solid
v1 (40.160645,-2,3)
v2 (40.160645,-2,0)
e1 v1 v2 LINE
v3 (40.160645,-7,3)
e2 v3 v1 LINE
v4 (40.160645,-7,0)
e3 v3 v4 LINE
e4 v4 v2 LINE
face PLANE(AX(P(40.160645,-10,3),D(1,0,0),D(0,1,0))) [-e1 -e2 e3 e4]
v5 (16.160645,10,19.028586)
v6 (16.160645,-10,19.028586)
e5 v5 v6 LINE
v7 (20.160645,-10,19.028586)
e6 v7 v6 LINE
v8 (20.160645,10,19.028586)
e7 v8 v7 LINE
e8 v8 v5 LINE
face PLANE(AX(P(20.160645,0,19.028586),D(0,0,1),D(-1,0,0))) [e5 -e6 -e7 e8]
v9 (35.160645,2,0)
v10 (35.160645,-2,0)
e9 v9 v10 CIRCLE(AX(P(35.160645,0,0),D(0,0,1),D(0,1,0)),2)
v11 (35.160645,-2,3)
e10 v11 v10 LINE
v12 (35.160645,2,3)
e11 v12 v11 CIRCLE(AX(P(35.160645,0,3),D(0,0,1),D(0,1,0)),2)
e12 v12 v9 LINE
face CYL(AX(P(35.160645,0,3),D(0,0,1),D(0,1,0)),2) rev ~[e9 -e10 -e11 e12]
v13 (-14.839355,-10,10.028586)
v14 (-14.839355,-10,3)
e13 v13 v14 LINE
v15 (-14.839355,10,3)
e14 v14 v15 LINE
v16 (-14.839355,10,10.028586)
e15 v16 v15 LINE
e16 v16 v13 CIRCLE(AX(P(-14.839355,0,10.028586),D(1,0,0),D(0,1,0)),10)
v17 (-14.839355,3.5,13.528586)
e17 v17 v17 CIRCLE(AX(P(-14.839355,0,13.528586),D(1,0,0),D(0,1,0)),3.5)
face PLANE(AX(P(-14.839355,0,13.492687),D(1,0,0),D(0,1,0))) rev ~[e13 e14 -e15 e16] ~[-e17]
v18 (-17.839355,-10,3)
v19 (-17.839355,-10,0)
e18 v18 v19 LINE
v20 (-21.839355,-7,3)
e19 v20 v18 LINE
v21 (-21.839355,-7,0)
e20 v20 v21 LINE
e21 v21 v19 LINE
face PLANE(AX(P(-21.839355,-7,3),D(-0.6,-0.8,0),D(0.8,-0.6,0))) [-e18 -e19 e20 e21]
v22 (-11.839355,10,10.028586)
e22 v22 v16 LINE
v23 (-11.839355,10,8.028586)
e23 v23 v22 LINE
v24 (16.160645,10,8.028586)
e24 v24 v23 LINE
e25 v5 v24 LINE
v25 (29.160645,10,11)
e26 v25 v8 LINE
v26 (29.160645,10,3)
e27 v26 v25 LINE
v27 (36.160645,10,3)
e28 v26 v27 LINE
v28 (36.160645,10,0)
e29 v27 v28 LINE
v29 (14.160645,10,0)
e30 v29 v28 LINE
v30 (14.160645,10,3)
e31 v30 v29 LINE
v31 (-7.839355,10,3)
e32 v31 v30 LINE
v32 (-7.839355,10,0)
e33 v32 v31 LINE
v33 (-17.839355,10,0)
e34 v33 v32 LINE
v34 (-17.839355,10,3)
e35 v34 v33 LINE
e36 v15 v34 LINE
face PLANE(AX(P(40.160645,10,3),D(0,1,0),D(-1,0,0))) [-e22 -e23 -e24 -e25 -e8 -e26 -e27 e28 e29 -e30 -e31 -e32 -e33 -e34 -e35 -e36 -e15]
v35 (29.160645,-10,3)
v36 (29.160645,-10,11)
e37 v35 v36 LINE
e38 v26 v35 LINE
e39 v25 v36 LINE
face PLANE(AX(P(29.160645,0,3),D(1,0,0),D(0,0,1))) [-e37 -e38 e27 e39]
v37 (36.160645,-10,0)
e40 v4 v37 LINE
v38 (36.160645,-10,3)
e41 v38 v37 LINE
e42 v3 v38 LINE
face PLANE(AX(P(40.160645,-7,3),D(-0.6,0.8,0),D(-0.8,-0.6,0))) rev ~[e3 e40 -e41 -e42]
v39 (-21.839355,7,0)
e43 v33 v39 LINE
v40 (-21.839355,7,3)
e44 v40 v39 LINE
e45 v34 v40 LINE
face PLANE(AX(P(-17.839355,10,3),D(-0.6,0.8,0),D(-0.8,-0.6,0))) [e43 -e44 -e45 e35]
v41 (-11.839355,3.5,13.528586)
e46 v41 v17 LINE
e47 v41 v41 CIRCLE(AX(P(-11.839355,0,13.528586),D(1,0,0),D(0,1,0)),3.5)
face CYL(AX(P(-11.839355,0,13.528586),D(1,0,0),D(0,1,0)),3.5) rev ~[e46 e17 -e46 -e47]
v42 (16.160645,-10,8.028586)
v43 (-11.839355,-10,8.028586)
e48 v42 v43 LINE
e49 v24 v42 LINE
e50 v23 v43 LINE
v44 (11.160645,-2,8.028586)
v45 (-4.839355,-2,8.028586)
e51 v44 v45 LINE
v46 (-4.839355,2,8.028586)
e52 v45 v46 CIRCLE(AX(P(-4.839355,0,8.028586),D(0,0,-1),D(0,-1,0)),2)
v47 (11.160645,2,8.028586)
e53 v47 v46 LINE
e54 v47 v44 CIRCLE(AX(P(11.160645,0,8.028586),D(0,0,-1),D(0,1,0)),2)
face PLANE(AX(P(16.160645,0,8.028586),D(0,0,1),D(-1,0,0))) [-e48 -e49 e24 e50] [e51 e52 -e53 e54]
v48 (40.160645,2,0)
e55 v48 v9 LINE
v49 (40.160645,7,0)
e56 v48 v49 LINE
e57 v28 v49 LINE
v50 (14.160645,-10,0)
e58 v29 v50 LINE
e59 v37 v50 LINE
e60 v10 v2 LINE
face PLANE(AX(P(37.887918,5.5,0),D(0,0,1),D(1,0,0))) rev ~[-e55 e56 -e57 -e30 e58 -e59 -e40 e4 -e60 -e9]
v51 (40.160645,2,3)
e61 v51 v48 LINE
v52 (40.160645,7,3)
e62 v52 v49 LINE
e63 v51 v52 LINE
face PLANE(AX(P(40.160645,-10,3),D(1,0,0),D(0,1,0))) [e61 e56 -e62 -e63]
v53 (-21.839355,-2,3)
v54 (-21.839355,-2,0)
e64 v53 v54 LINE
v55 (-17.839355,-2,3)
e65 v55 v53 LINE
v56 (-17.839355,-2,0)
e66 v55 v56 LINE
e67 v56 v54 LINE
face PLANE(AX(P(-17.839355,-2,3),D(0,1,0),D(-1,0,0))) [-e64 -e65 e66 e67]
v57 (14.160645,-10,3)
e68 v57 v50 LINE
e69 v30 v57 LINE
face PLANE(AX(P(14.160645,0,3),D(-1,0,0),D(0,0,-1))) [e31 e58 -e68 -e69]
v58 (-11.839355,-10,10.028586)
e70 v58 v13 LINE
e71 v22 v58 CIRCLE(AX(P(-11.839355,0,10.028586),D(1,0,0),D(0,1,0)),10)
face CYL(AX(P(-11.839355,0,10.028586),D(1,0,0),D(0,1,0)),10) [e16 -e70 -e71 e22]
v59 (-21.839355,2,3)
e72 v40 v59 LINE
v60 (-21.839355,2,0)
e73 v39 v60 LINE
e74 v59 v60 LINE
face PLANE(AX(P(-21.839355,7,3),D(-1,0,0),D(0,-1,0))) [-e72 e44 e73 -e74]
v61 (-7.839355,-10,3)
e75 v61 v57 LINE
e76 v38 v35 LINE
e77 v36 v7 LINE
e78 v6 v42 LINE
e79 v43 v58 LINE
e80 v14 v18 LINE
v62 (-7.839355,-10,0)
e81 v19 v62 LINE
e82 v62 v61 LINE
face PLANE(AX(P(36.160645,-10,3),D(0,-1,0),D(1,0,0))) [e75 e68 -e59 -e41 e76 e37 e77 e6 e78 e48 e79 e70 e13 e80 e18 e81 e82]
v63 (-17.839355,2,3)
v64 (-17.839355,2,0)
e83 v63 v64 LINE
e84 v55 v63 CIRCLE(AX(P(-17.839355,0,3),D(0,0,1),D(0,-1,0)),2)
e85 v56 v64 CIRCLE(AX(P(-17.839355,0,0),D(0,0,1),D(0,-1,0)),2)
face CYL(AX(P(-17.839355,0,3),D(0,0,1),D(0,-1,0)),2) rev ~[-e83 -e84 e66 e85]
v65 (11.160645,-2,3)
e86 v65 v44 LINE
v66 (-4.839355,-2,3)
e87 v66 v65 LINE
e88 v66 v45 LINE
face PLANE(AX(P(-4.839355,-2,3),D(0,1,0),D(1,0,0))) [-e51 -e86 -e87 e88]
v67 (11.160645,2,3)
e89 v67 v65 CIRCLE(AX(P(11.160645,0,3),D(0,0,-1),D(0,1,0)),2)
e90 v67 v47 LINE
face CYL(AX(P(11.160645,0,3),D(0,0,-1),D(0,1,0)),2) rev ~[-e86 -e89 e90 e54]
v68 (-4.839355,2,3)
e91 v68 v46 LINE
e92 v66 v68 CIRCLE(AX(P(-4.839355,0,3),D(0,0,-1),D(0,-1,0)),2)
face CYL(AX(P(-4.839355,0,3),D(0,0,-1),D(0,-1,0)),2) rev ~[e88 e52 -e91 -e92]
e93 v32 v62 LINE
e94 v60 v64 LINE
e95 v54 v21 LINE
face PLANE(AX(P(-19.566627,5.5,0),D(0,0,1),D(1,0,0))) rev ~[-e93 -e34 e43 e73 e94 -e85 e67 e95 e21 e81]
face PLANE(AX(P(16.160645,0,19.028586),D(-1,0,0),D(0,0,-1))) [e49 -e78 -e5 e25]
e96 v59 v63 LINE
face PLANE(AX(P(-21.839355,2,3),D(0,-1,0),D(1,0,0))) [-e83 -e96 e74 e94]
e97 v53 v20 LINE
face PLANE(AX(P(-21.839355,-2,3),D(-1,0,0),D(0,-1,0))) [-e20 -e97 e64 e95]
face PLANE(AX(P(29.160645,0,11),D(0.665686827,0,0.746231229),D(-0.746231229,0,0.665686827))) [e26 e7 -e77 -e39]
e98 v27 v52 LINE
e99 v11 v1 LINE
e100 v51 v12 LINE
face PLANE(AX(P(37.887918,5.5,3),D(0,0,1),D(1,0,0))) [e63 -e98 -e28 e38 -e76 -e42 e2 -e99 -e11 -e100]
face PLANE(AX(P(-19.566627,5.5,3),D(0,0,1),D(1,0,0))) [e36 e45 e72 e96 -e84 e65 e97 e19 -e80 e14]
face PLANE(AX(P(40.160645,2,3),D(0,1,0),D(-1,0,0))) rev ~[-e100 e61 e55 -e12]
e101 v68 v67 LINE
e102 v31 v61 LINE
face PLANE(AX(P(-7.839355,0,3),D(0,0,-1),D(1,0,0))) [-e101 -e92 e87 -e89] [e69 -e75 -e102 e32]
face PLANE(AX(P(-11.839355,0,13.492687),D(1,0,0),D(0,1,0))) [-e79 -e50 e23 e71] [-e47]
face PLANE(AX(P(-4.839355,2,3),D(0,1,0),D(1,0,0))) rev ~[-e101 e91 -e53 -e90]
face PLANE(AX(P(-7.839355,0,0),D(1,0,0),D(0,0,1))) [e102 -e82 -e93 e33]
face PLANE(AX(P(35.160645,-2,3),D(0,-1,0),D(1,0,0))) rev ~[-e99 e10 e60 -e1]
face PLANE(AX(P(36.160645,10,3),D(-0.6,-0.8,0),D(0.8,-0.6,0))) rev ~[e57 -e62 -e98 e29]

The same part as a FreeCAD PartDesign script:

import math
import FreeCAD as App
import Part
import Sketcher
from FreeCAD import Vector
Q = App.Units.Quantity


def add_polygon(sketch, points):
    """Adds a closed chain of lines whose ends are joined by coincident constraints."""
    first, n = sketch.GeometryCount, len(points)
    for a, b in zip(points, points[1:] + points[:1]):
        sketch.addGeometry(Part.LineSegment(App.Vector(*a, 0), App.Vector(*b, 0)), False)
    for i in range(n):
        sketch.addConstraint(Sketcher.Constraint("Coincident", first + i, 2, first + (i + 1) % n, 1))

doc = App.newDocument("Part")
params = doc.addObject("Spreadsheet::Sheet", "Params")
for row, (alias, value) in enumerate([
    ("sketch1_width", "10 mm"),
    ("sketch1_width2", "22 mm"),
    ("sketch1_width3", "7 mm"),
    ("sketch1_width4", "4 mm"),
    ("sketch1_width5", "28 mm"),
    ("pad1_length", "20 mm"),
    ("sketch2_radius", "2 mm"),
    ("sketch2_width", "1 mm"),
    ("sketch2_width2", "4 mm"),
    ("sketch2_height", "8 mm"),
    ("pad2_length", "3 mm"),
    ("sketch3_radius", "2 mm"),
    ("sketch3_width", "5 mm"),
    ("sketch3_height", "3 mm"),
    ("pocket1_length", "3 mm"),
    ("sketch4_width", "4 mm"),
    ("sketch4_height", "8 mm"),
    ("sketch4_height2", "5 mm"),
    ("pad3_length", "3 mm"),
    ("sketch5_radius", "2 mm"),
    ("pocket2_length", "3 mm"),
    ("sketch6_radius", "2 mm"),
    ("sketch6_width", "16 mm"),
    ("pocket3_length", "6 mm"),
    ("sketch7_radius", "10 mm"),
    ("pad4_length", "3 mm"),
    ("sketch8_diameter", "7 mm"),
    ("pocket4_length", "3 mm"),
], start=1):
    params.set(f"A{row}", alias)
    params.set(f"B{row}", "=" + value)
    params.setAlias(f"B{row}", alias)

body = doc.addObject("PartDesign::Body", "Body")

# Sketch on XZ plane
sketch1 = body.newObject("Sketcher::SketchObject", "Sketch")
sketch1.AttachmentSupport = (doc.getObject("XZ_Plane"), [""])
sketch1.MapMode = "FlatFace"
add_polygon(sketch1, [(-17.839355, 3), (-17.839355, 0), (-7.839355, 0), (-7.839355, 3), (14.160645, 3), (14.160645, 0), (36.160645, 0), (36.160645, 3), (29.160645, 3), (29.160645, 11), (20.160645, 19.028586), (16.160645, 19.028586), (16.160645, 8.028586), (-11.839355, 8.028586), (-11.839355, 10.028586), (-14.839355, 10.028586), (-14.839355, 3)])  # lines 0-16
sketch1.addConstraint([
    Sketcher.Constraint("Vertical", 0),
    Sketcher.Constraint("Horizontal", 1),
    Sketcher.Constraint("Vertical", 2),
    Sketcher.Constraint("Horizontal", 3),
    Sketcher.Constraint("Vertical", 4),
    Sketcher.Constraint("Horizontal", 5),
    Sketcher.Constraint("Vertical", 6),
    Sketcher.Constraint("Horizontal", 7),
    Sketcher.Constraint("Vertical", 8),
    Sketcher.Constraint("Horizontal", 10),
    Sketcher.Constraint("Vertical", 11),
    Sketcher.Constraint("Horizontal", 12),
    Sketcher.Constraint("Vertical", 13),
    Sketcher.Constraint("Horizontal", 14),
    Sketcher.Constraint("Vertical", 15),
    Sketcher.Constraint("Horizontal", 16),
    Sketcher.Constraint("PointOnObject", 0, 2, -1),
    Sketcher.Constraint("PointOnObject", 4, 2, -1),
    Sketcher.Constraint("Horizontal", 3, 2, 6, 2),
    Sketcher.Constraint("Horizontal", 7, 2, 15, 2),
    Sketcher.Constraint("Equal", 3, 5),
    Sketcher.Constraint("Equal", 14, 16),
    Sketcher.Constraint("Equal", 16, 0),
    Sketcher.Constraint("DistanceX", 1, 1, 1, 2, Q("10 mm")),
    Sketcher.Constraint("DistanceX", 3, 1, 3, 2, Q("22 mm")),
    Sketcher.Constraint("DistanceX", 7, 2, 7, 1, Q("7 mm")),
    Sketcher.Constraint("DistanceX", 10, 2, 10, 1, Q("4 mm")),
    Sketcher.Constraint("DistanceX", 12, 2, 12, 1, Q("28 mm")),
    Sketcher.Constraint("DistanceX", 14, 2, 14, 1, Q("3 mm")),
    Sketcher.Constraint("DistanceY", 8, 1, 8, 2, Q("8 mm")),
    Sketcher.Constraint("DistanceY", 11, 2, 11, 1, Q("11 mm")),
    Sketcher.Constraint("DistanceY", 13, 1, 13, 2, Q("2 mm")),
    Sketcher.Constraint("DistanceY", 15, 2, 15, 1, Q("7.028586 mm")),
    Sketcher.Constraint("DistanceX", 0, 2, -1, 1, Q("17.839355 mm")),
])
sketch1.setExpression("Constraints[40]", "Params.sketch1_width")
sketch1.setExpression("Constraints[41]", "Params.sketch1_width2")
sketch1.setExpression("Constraints[42]", "Params.sketch1_width3")
sketch1.setExpression("Constraints[43]", "Params.sketch1_width4")
sketch1.setExpression("Constraints[44]", "Params.sketch1_width5")
pad1 = body.newObject("PartDesign::Pad", "Pad")
pad1.Profile = sketch1
pad1.setExpression("Length", "Params.pad1_length")
pad1.Midplane = True

# Sketch on XY plane
sketch2 = body.newObject("Sketcher::SketchObject", "Sketch001")
sketch2.AttachmentSupport = (doc.getObject("XY_Plane"), [""])
sketch2.MapMode = "FlatFace"
sketch2.AttachmentOffset = App.Placement(Vector(0, 0, 3), App.Rotation())
sketch2.addGeometry([
    Part.LineSegment(Vector(36.160645, 10, 0), Vector(36.160645, 2, 0)),  # 0
    Part.LineSegment(Vector(36.160645, 2, 0), Vector(35.160645, 2, 0)),  # 1
    Part.ArcOfCircle(Part.Circle(Vector(35.160645, 0, 0), Vector(0, 0, 1), 2), math.radians(90), math.radians(270)),  # 2
    Part.LineSegment(Vector(35.160645, -2, 0), Vector(36.160645, -2, 0)),  # 3
    Part.LineSegment(Vector(36.160645, -2, 0), Vector(36.160645, -10, 0)),  # 4
    Part.LineSegment(Vector(36.160645, -10, 0), Vector(40.160645, -10, 0)),  # 5
    Part.LineSegment(Vector(40.160645, -10, 0), Vector(40.160645, 10, 0)),  # 6
    Part.LineSegment(Vector(40.160645, 10, 0), Vector(36.160645, 10, 0)),  # 7
], False)
sketch2.addConstraint([
    Sketcher.Constraint("Coincident", 0, 2, 1, 1),
    Sketcher.Constraint("Tangent", 1, 2, 2, 1),
    Sketcher.Constraint("Tangent", 2, 2, 3, 1),
    Sketcher.Constraint("Coincident", 3, 2, 4, 1),
    Sketcher.Constraint("Coincident", 4, 2, 5, 1),
    Sketcher.Constraint("Coincident", 5, 2, 6, 1),
    Sketcher.Constraint("Coincident", 6, 2, 7, 1),
    Sketcher.Constraint("Coincident", 7, 2, 0, 1),
    Sketcher.Constraint("Vertical", 0),
    Sketcher.Constraint("Horizontal", 1),
    Sketcher.Constraint("Horizontal", 3),
    Sketcher.Constraint("Vertical", 4),
    Sketcher.Constraint("Horizontal", 5),
    Sketcher.Constraint("Vertical", 6),
    Sketcher.Constraint("Horizontal", 7),
    Sketcher.Constraint("Symmetric", 0, 2, 3, 2, -1),
    Sketcher.Constraint("Equal", 0, 4),
    Sketcher.Constraint("Radius", 2, Q("2 mm")),
    Sketcher.Constraint("DistanceX", 1, 2, 1, 1, Q("1 mm")),
    Sketcher.Constraint("DistanceX", 5, 1, 5, 2, Q("4 mm")),
    Sketcher.Constraint("DistanceY", 0, 2, 0, 1, Q("8 mm")),
    Sketcher.Constraint("DistanceX", -1, 1, 2, 3, Q("35.160645 mm")),
])
sketch2.setExpression("Constraints[17]", "Params.sketch2_radius")
sketch2.setExpression("Constraints[18]", "Params.sketch2_width")
sketch2.setExpression("Constraints[19]", "Params.sketch2_width2")
sketch2.setExpression("Constraints[20]", "Params.sketch2_height")
pad2 = body.newObject("PartDesign::Pad", "Pad001")
pad2.Profile = sketch2
pad2.setExpression("Length", "Params.pad2_length")
pad2.Reversed = True

# Sketch on XY plane
sketch3 = body.newObject("Sketcher::SketchObject", "Sketch002")
sketch3.AttachmentSupport = (doc.getObject("XY_Plane"), [""])
sketch3.MapMode = "FlatFace"
sketch3.AttachmentOffset = App.Placement(Vector(0, 0, 3), App.Rotation())
sketch3.addGeometry(Part.LineSegment(Vector(40.160645, -2, 0), Vector(40.160645, 2, 0)), False)  # 0
sketch3.addGeometry(Part.LineSegment(Vector(40.160645, 2, 0), Vector(35.160645, 2, 0)), False)  # 1
sketch3.addGeometry(Part.ArcOfCircle(Part.Circle(Vector(35.160645, 0, 0), Vector(0, 0, 1), 2), math.radians(90), math.radians(270)), False)  # 2
sketch3.addGeometry(Part.LineSegment(Vector(35.160645, -2, 0), Vector(40.160645, -2, 0)), False)  # 3
add_polygon(sketch3, [(40.160645, -7), (36.160645, -10), (40.160645, -10)])  # lines 4-6
add_polygon(sketch3, [(40.160645, 10), (36.160645, 10), (40.160645, 7)])  # lines 7-9
sketch3.addConstraint([
    Sketcher.Constraint("Coincident", 0, 2, 1, 1),
    Sketcher.Constraint("Tangent", 1, 2, 2, 1),
    Sketcher.Constraint("Tangent", 2, 2, 3, 1),
    Sketcher.Constraint("Coincident", 3, 2, 0, 1),
    Sketcher.Constraint("Vertical", 0),
    Sketcher.Constraint("Horizontal", 1),
    Sketcher.Constraint("Horizontal", 3),
    Sketcher.Constraint("Horizontal", 5),
    Sketcher.Constraint("Vertical", 6),
    Sketcher.Constraint("Horizontal", 7),
    Sketcher.Constraint("Vertical", 9),
    Sketcher.Constraint("Symmetric", 4, 2, 7, 2, -1),
    Sketcher.Constraint("Symmetric", 6, 2, 8, 2, -1),
    Sketcher.Constraint("PointOnObject", 2, 3, -1),
    Sketcher.Constraint("Vertical", 3, 2, 5, 2),
    Sketcher.Constraint("Equal", 7, 0),
    Sketcher.Constraint("Radius", 2, Q("2 mm")),
    Sketcher.Constraint("DistanceX", 1, 2, 1, 1, Q("5 mm")),
    Sketcher.Constraint("DistanceY", 6, 1, 6, 2, Q("3 mm")),
    Sketcher.Constraint("DistanceY", 4, 2, -1, 1, Q("10 mm")),
    Sketcher.Constraint("DistanceX", -1, 1, 2, 3, Q("35.160645 mm")),
])
sketch3.setExpression("Constraints[22]", "Params.sketch3_radius")
sketch3.setExpression("Constraints[23]", "Params.sketch3_width")
sketch3.setExpression("Constraints[24]", "Params.sketch3_height")
pocket1 = body.newObject("PartDesign::Pocket", "Pocket")
pocket1.Profile = sketch3
pocket1.setExpression("Length", "Params.pocket1_length")

# Sketch on XY plane
sketch4 = body.newObject("Sketcher::SketchObject", "Sketch003")
sketch4.AttachmentSupport = (doc.getObject("XY_Plane"), [""])
sketch4.MapMode = "FlatFace"
sketch4.AttachmentOffset = App.Placement(Vector(0, 0, 3), App.Rotation())
add_polygon(sketch4, [(-17.839355, 2), (-17.839355, 10), (-21.839355, 7), (-21.839355, 2)])  # lines 0-3
add_polygon(sketch4, [(-17.839355, -10), (-17.839355, -2), (-21.839355, -2), (-21.839355, -7)])  # lines 4-7
sketch4.addConstraint([
    Sketcher.Constraint("Vertical", 0),
    Sketcher.Constraint("Vertical", 2),
    Sketcher.Constraint("Horizontal", 3),
    Sketcher.Constraint("Vertical", 4),
    Sketcher.Constraint("Horizontal", 5),
    Sketcher.Constraint("Vertical", 6),
    Sketcher.Constraint("Symmetric", 3, 2, 4, 2, -1),
    Sketcher.Constraint("Symmetric", 1, 2, 6, 2, -1),
    Sketcher.Constraint("Equal", 0, 4),
    Sketcher.Constraint("DistanceX", 3, 1, 3, 2, Q("4 mm")),
    Sketcher.Constraint("DistanceY", 0, 1, 0, 2, Q("8 mm")),
    Sketcher.Constraint("DistanceY", 2, 2, 2, 1, Q("5 mm")),
    Sketcher.Constraint("DistanceY", -1, 1, 0, 2, Q("10 mm")),
    Sketcher.Constraint("DistanceX", 0, 2, -1, 1, Q("17.839355 mm")),
])
sketch4.setExpression("Constraints[17]", "Params.sketch4_width")
sketch4.setExpression("Constraints[18]", "Params.sketch4_height")
sketch4.setExpression("Constraints[19]", "Params.sketch4_height2")
pad3 = body.newObject("PartDesign::Pad", "Pad002")
pad3.Profile = sketch4
pad3.setExpression("Length", "Params.pad3_length")
pad3.Reversed = True

# Sketch on XY plane
sketch5 = body.newObject("Sketcher::SketchObject", "Sketch004")
sketch5.AttachmentSupport = (doc.getObject("XY_Plane"), [""])
sketch5.MapMode = "FlatFace"
sketch5.AttachmentOffset = App.Placement(Vector(0, 0, 3), App.Rotation())
sketch5.addGeometry([
    Part.ArcOfCircle(Part.Circle(Vector(-17.839355, 0, 0), Vector(0, 0, 1), 2), math.radians(-90), math.radians(90)),
    Part.LineSegment(Vector(-17.839355, 2, 0), Vector(-17.839355, -2, 0)),
], False)
sketch5.addConstraint([
    Sketcher.Constraint("Coincident", 0, 1, 1, 2),
    Sketcher.Constraint("Coincident", 1, 1, 0, 2),
    Sketcher.Constraint("Vertical", 1),
    Sketcher.Constraint("PointOnObject", 0, 3, -1),
    Sketcher.Constraint("Radius", 0, Q("2 mm")),
    Sketcher.Constraint("DistanceX", 0, 3, -1, 1, Q("17.839355 mm")),
    Sketcher.Constraint("DistanceX", 0, 1, -1, 1, Q("17.839355 mm")),
])
sketch5.setExpression("Constraints[4]", "Params.sketch5_radius")
pocket2 = body.newObject("PartDesign::Pocket", "Pocket001")
pocket2.Profile = sketch5
pocket2.setExpression("Length", "Params.pocket2_length")

# Sketch on XY plane
sketch6 = body.newObject("Sketcher::SketchObject", "Sketch005")
sketch6.AttachmentSupport = (doc.getObject("XY_Plane"), [""])
sketch6.MapMode = "FlatFace"
sketch6.AttachmentOffset = App.Placement(Vector(0, 0, 3), App.Rotation())
sketch6.addGeometry([
    Part.LineSegment(Vector(-4.839355, 2, 0), Vector(11.160645, 2, 0)),
    Part.ArcOfCircle(Part.Circle(Vector(11.160645, 0, 0), Vector(0, 0, 1), 2), math.radians(-90), math.radians(90)),
    Part.LineSegment(Vector(11.160645, -2, 0), Vector(-4.839355, -2, 0)),
    Part.ArcOfCircle(Part.Circle(Vector(-4.839355, 0, 0), Vector(0, 0, 1), 2), math.radians(90), math.radians(270)),
], False)
sketch6.addConstraint([
    Sketcher.Constraint("Tangent", 0, 2, 1, 2),
    Sketcher.Constraint("Tangent", 1, 1, 2, 1),
    Sketcher.Constraint("Tangent", 2, 2, 3, 2),
    Sketcher.Constraint("Tangent", 3, 1, 0, 1),
    Sketcher.Constraint("Horizontal", 0),
    Sketcher.Constraint("Horizontal", 2),
    Sketcher.Constraint("PointOnObject", 1, 3, -1),
    Sketcher.Constraint("Radius", 1, Q("2 mm")),
    Sketcher.Constraint("DistanceX", 0, 1, 0, 2, Q("16 mm")),
    Sketcher.Constraint("DistanceX", -1, 1, 1, 3, Q("11.160645 mm")),
])
sketch6.setExpression("Constraints[7]", "Params.sketch6_radius")
sketch6.setExpression("Constraints[8]", "Params.sketch6_width")
pocket3 = body.newObject("PartDesign::Pocket", "Pocket002")
pocket3.Profile = sketch6
pocket3.setExpression("Length", "Params.pocket3_length")
pocket3.Reversed = True

# Sketch on YZ plane
sketch7 = body.newObject("Sketcher::SketchObject", "Sketch006")
sketch7.AttachmentSupport = (doc.getObject("YZ_Plane"), [""])
sketch7.MapMode = "FlatFace"
sketch7.AttachmentOffset = App.Placement(Vector(0, 0, -11.839355), App.Rotation())
sketch7.addGeometry([
    Part.LineSegment(Vector(-10, 10.028586, 0), Vector(10, 10.028586, 0)),
    Part.ArcOfCircle(Part.Circle(Vector(0, 10.028586, 0), Vector(0, 0, 1), 10), math.radians(0), math.radians(180)),
], False)
sketch7.addConstraint([
    Sketcher.Constraint("Coincident", 0, 1, 1, 2),
    Sketcher.Constraint("Coincident", 1, 1, 0, 2),
    Sketcher.Constraint("Horizontal", 0),
    Sketcher.Constraint("PointOnObject", 1, 3, -2),
    Sketcher.Constraint("Horizontal", 1, 3, 0, 1),
    Sketcher.Constraint("Radius", 1, Q("10 mm")),
    Sketcher.Constraint("DistanceY", -1, 1, 1, 3, Q("10.028586 mm")),
])
sketch7.setExpression("Constraints[5]", "Params.sketch7_radius")
pad4 = body.newObject("PartDesign::Pad", "Pad003")
pad4.Profile = sketch7
pad4.setExpression("Length", "Params.pad4_length")
pad4.Reversed = True

# Sketch on YZ plane
sketch8 = body.newObject("Sketcher::SketchObject", "Sketch007")
sketch8.AttachmentSupport = (doc.getObject("YZ_Plane"), [""])
sketch8.MapMode = "FlatFace"
sketch8.AttachmentOffset = App.Placement(Vector(0, 0, -11.839355), App.Rotation())
sketch8.addGeometry(Part.Circle(Vector(0, 13.528586, 0), Vector(0, 0, 1), 3.5), False)
sketch8.addConstraint([
    Sketcher.Constraint("PointOnObject", 0, 3, -2),
    Sketcher.Constraint("Diameter", 0, Q("7 mm")),
    Sketcher.Constraint("DistanceY", -1, 1, 0, 3, Q("13.528586 mm")),
])
sketch8.setExpression("Constraints[1]", "Params.sketch8_diameter")
pocket4 = body.newObject("PartDesign::Pocket", "Pocket003")
pocket4.Profile = sketch8
pocket4.setExpression("Length", "Params.pocket4_length")

doc.recompute()
